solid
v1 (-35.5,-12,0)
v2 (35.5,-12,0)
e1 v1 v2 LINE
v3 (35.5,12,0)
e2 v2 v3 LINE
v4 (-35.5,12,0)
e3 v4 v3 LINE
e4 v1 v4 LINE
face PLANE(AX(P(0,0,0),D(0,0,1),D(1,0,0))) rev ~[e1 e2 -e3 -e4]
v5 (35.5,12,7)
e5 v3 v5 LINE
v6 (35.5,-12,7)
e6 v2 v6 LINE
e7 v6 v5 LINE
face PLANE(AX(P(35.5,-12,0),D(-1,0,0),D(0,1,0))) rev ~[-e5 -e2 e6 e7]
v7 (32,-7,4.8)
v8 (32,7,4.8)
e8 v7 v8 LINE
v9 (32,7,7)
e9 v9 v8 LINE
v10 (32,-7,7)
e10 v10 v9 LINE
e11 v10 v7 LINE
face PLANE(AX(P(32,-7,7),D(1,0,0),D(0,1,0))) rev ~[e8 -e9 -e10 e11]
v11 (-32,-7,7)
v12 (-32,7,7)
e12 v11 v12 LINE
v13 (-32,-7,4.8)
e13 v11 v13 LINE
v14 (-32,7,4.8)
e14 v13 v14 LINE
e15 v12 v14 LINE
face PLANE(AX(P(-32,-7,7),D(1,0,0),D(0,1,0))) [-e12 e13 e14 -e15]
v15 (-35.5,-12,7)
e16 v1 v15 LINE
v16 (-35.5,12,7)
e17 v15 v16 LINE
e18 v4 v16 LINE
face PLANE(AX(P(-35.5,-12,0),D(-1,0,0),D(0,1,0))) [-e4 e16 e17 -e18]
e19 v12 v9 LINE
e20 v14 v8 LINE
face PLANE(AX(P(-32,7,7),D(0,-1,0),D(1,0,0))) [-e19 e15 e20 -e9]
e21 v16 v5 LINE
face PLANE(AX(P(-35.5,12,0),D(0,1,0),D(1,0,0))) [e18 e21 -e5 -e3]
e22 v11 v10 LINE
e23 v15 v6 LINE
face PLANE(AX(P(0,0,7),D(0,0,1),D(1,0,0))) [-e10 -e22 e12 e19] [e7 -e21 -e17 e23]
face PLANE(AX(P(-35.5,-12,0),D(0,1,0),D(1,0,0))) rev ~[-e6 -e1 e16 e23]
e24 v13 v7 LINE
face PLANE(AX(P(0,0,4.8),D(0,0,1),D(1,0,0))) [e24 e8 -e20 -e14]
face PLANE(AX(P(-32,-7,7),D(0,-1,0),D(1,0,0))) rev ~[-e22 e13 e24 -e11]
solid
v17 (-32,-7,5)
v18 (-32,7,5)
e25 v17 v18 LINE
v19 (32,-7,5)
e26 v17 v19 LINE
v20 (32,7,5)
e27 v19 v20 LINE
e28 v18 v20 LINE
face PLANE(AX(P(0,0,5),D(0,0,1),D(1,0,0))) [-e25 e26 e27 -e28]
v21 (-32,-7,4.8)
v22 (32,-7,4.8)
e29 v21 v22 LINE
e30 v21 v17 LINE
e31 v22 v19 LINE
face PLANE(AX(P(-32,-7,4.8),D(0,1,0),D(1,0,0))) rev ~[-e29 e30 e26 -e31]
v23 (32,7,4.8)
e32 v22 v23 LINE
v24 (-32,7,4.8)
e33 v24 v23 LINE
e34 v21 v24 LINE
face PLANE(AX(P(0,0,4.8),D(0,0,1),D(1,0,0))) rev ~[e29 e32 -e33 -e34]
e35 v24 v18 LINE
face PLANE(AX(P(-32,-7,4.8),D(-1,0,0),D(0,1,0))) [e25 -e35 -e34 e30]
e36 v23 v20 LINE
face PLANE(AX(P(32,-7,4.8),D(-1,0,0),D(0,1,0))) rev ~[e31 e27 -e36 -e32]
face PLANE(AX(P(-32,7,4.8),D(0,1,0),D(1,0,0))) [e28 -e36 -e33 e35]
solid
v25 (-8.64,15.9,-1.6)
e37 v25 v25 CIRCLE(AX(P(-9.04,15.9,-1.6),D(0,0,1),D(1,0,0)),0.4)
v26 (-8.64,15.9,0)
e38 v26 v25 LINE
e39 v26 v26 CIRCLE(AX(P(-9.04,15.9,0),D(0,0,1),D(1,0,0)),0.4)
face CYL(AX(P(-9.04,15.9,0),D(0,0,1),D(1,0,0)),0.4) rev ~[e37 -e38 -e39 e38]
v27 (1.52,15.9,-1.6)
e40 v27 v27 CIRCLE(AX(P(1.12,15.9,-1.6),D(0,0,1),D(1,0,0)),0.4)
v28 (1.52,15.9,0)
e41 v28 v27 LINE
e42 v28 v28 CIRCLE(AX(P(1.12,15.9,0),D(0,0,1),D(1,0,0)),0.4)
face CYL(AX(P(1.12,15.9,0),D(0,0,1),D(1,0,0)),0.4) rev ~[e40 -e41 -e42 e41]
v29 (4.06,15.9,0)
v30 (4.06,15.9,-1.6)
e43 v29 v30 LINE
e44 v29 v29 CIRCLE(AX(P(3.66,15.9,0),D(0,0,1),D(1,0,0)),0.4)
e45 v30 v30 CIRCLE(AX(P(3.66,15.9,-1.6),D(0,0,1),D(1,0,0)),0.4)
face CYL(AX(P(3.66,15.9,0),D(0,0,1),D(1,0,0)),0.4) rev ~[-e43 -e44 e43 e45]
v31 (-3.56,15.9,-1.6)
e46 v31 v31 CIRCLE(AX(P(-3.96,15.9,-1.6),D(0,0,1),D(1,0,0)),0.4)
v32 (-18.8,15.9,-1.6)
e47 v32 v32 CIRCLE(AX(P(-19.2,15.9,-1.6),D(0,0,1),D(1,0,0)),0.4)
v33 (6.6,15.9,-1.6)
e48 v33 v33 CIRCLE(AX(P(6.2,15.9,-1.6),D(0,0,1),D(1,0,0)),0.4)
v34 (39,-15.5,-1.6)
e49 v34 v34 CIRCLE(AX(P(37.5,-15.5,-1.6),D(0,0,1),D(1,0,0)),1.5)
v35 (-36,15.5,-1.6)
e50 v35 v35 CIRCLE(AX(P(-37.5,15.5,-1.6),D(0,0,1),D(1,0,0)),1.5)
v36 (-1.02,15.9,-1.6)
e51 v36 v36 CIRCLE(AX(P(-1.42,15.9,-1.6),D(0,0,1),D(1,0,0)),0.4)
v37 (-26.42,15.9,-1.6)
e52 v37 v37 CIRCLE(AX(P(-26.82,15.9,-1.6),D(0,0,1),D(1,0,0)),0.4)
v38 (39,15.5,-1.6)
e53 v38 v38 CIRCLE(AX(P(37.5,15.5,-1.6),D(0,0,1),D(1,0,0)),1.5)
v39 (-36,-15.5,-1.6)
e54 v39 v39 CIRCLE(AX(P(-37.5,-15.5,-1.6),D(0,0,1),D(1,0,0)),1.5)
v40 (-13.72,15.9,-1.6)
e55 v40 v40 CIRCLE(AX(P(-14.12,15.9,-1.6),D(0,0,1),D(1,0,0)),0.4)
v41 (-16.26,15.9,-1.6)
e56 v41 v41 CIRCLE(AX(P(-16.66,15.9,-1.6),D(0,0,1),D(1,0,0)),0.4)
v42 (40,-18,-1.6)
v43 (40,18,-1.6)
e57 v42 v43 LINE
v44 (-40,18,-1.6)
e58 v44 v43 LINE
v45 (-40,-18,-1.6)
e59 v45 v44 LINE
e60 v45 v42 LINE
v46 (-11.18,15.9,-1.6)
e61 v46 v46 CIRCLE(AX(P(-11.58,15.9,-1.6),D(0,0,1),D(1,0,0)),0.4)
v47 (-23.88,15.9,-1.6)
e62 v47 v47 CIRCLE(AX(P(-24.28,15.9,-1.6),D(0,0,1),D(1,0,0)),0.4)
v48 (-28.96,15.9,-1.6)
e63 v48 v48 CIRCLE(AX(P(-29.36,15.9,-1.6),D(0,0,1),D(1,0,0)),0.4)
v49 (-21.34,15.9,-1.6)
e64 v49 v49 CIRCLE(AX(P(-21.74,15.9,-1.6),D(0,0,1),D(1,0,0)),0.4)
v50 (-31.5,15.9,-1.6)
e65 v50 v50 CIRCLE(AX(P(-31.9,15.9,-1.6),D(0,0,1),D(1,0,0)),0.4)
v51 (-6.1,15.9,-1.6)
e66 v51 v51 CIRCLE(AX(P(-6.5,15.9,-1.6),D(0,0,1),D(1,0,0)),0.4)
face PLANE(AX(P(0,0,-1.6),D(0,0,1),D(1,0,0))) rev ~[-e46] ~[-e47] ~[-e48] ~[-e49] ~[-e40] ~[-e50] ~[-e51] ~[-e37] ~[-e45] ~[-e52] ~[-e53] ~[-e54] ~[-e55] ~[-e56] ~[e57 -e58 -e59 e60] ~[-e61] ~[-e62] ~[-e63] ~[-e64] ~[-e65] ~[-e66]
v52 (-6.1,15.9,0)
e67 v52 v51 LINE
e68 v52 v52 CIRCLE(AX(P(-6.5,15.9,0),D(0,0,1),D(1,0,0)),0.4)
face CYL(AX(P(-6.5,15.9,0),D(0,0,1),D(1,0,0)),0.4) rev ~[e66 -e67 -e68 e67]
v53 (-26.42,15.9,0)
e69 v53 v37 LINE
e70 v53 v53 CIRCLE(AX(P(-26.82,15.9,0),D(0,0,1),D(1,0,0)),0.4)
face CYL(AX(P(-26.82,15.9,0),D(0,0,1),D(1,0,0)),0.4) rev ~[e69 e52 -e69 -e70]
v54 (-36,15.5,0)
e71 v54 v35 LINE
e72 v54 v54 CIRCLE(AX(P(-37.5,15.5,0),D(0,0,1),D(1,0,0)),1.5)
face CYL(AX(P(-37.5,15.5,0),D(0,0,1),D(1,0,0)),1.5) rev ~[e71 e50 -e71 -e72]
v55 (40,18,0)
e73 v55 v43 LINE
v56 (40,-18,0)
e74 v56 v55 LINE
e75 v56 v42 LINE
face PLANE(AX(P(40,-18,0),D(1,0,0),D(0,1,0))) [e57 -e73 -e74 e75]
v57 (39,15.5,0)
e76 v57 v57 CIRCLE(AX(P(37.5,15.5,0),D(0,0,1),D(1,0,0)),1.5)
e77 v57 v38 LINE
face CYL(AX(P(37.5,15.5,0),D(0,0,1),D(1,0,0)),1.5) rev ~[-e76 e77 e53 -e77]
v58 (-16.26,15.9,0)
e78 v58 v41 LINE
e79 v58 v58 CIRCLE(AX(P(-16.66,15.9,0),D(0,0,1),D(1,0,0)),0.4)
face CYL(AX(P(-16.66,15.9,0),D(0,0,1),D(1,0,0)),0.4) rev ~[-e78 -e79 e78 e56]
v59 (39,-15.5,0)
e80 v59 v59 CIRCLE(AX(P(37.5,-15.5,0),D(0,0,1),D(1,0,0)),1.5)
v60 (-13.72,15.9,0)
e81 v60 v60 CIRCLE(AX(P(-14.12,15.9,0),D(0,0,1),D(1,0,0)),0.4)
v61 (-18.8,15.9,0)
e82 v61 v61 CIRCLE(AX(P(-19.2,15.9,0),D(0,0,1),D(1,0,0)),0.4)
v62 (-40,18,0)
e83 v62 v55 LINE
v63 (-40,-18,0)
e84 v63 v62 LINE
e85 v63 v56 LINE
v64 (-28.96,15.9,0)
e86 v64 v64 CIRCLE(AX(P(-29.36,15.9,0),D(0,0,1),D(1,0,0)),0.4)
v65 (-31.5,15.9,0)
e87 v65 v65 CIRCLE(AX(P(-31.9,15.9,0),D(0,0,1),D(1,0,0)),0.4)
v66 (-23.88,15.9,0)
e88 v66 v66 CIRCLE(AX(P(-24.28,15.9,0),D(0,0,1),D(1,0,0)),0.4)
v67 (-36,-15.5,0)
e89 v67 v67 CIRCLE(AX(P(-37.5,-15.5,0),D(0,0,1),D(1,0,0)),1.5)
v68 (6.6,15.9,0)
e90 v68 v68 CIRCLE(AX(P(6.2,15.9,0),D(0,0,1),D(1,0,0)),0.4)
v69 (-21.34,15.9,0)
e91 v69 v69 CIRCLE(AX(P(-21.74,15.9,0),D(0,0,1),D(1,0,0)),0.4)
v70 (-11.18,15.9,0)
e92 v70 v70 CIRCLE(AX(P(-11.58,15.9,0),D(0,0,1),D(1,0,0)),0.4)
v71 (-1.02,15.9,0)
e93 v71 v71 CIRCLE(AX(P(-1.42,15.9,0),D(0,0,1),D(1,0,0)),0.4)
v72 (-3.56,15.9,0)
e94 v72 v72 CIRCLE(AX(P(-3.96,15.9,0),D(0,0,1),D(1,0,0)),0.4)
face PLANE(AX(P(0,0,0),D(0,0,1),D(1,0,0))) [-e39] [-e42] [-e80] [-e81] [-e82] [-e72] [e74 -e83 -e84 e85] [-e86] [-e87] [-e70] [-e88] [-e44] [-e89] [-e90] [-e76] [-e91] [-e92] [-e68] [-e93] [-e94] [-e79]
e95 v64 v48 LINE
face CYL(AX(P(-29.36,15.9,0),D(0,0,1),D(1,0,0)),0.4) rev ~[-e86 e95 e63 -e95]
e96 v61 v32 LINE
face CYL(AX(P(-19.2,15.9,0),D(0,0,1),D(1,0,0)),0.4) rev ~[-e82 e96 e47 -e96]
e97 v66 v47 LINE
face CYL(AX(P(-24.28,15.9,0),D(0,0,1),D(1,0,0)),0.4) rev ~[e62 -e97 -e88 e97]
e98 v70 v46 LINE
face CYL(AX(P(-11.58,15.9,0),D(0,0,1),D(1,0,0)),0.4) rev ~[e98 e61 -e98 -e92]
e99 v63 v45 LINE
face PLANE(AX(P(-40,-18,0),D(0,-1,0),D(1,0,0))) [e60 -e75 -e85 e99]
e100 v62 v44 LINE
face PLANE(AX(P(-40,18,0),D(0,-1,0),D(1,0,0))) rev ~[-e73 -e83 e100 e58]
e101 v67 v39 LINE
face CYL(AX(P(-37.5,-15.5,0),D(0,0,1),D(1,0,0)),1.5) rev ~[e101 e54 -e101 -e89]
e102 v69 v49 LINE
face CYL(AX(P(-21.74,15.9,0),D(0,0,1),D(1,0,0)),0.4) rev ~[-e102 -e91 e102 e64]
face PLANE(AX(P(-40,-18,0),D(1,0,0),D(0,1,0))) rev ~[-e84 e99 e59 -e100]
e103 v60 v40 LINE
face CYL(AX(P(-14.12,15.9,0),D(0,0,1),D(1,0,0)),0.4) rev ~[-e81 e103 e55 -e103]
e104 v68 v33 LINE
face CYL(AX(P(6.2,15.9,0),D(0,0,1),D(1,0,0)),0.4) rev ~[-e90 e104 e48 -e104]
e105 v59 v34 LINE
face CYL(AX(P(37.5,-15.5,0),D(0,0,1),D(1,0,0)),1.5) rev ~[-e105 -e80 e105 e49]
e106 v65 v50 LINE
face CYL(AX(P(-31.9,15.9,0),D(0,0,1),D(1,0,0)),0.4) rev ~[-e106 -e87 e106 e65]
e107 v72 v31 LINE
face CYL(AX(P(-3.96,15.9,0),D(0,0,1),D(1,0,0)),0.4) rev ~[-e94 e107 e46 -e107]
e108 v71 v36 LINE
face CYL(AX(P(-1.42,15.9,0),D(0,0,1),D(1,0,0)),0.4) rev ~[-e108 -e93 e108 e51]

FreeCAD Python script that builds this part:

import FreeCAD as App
import Part
import Sketcher

V = App.Vector


def add_polygon(sketch, points):
    """Adds a closed chain of lines whose ends are joined by coincident constraints."""
    first, n = sketch.GeometryCount, len(points)
    for a, b in zip(points, points[1:] + points[:1]):
        sketch.addGeometry(Part.LineSegment(App.Vector(*a, 0), App.Vector(*b, 0)), False)
    for i in range(n):
        sketch.addConstraint(Sketcher.Constraint("Coincident", first + i, 2, first + (i + 1) % n, 1))

doc = App.newDocument("Part")
body = doc.addObject("PartDesign::Body", "Body")

# Sketch on XY plane
sketch1 = body.newObject("Sketcher::SketchObject", "Sketch")
sketch1.AttachmentSupport = (doc.getObject("XY_Plane"), [""])
sketch1.MapMode = "FlatFace"
add_polygon(sketch1, [(-40, 18), (-40, -18), (40, -18), (40, 18)])  # lines 0-3
sketch1.addGeometry(Part.Circle(V(-37.5, -15.5, 0), V(0, 0, 1), 1.5), False)  # 4
sketch1.addGeometry(Part.Circle(V(37.5, -15.5, 0), V(0, 0, 1), 1.5), False)  # 5
sketch1.addGeometry(Part.Circle(V(-37.5, 15.5, 0), V(0, 0, 1), 1.5), False)  # 6
sketch1.addGeometry(Part.Circle(V(37.5, 15.5, 0), V(0, 0, 1), 1.5), False)  # 7
sketch1.addConstraint([
    Sketcher.Constraint("Vertical", 0),
    Sketcher.Constraint("Horizontal", 1),
    Sketcher.Constraint("Vertical", 2),
    Sketcher.Constraint("Horizontal", 3),
    Sketcher.Constraint("Equal", 4, 5),
    Sketcher.Constraint("Equal", 5, 6),
    Sketcher.Constraint("Equal", 6, 7),
    Sketcher.Constraint("Symmetric", 5, 3, 6, 3, -1, 1),
    Sketcher.Constraint("Symmetric", 4, 3, 7, 3, -1, 1),
    Sketcher.Constraint("Symmetric", 0, 2, 2, 2, -1, 1),
    Sketcher.Constraint("Symmetric", 4, 3, 5, 3, -2),
    Sketcher.Constraint("Diameter", 4, 3.0),
    Sketcher.Constraint("DistanceX", 1, 1, 1, 2, 80.0),
    Sketcher.Constraint("DistanceY", 0, 2, 0, 1, 36.0),
    Sketcher.Constraint("DistanceX", 4, 3, 5, 3, 75.0),
    Sketcher.Constraint("DistanceY", 4, 3, 6, 3, 31.0),
])
pad1 = body.newObject("PartDesign::Pad", "Pad")
pad1.Profile = sketch1
pad1.Length = 1.6
pad1.Reversed = True

# Sketch on XY plane
sketch2 = body.newObject("Sketcher::SketchObject", "Sketch001")
sketch2.AttachmentSupport = (doc.getObject("XY_Plane"), [""])
sketch2.MapMode = "FlatFace"
sketch2.addGeometry([
    Part.Circle(V(-31.9, 15.9, 0), V(0, 0, 1), 0.4),  # 0
    Part.Circle(V(-29.36, 15.9, 0), V(0, 0, 1), 0.4),  # 1
    Part.Circle(V(-26.82, 15.9, 0), V(0, 0, 1), 0.4),  # 2
    Part.Circle(V(-24.28, 15.9, 0), V(0, 0, 1), 0.4),  # 3
    Part.Circle(V(-21.74, 15.9, 0), V(0, 0, 1), 0.4),  # 4
    Part.Circle(V(-19.2, 15.9, 0), V(0, 0, 1), 0.4),  # 5
    Part.Circle(V(-16.66, 15.9, 0), V(0, 0, 1), 0.4),  # 6
    Part.Circle(V(-14.12, 15.9, 0), V(0, 0, 1), 0.4),  # 7
    Part.Circle(V(-11.58, 15.9, 0), V(0, 0, 1), 0.4),  # 8
    Part.Circle(V(-9.04, 15.9, 0), V(0, 0, 1), 0.4),  # 9
    Part.Circle(V(-6.5, 15.9, 0), V(0, 0, 1), 0.4),  # 10
    Part.Circle(V(-3.96, 15.9, 0), V(0, 0, 1), 0.4),  # 11
    Part.Circle(V(-1.42, 15.9, 0), V(0, 0, 1), 0.4),  # 12
    Part.Circle(V(1.12, 15.9, 0), V(0, 0, 1), 0.4),  # 13
    Part.Circle(V(3.66, 15.9, 0), V(0, 0, 1), 0.4),  # 14
    Part.Circle(V(6.2, 15.9, 0), V(0, 0, 1), 0.4),  # 15
], False)
sketch2.addConstraint([
    Sketcher.Constraint("Equal", 0, 1),
    Sketcher.Constraint("Equal", 1, 2),
    Sketcher.Constraint("Equal", 2, 3),
    Sketcher.Constraint("Equal", 3, 4),
    Sketcher.Constraint("Equal", 4, 5),
    Sketcher.Constraint("Equal", 5, 6),
    Sketcher.Constraint("Equal", 6, 7),
    Sketcher.Constraint("Equal", 7, 8),
    Sketcher.Constraint("Equal", 8, 9),
    Sketcher.Constraint("Equal", 9, 10),
    Sketcher.Constraint("Equal", 10, 11),
    Sketcher.Constraint("Equal", 11, 12),
    Sketcher.Constraint("Equal", 12, 13),
    Sketcher.Constraint("Equal", 13, 14),
    Sketcher.Constraint("Equal", 14, 15),
    Sketcher.Constraint("Horizontal", 0, 3, 1, 3),
    Sketcher.Constraint("Horizontal", 1, 3, 2, 3),
    Sketcher.Constraint("Horizontal", 2, 3, 3, 3),
    Sketcher.Constraint("Horizontal", 3, 3, 4, 3),
    Sketcher.Constraint("Horizontal", 4, 3, 5, 3),
    Sketcher.Constraint("Horizontal", 5, 3, 6, 3),
    Sketcher.Constraint("Horizontal", 6, 3, 7, 3),
    Sketcher.Constraint("Horizontal", 7, 3, 8, 3),
    Sketcher.Constraint("Horizontal", 8, 3, 9, 3),
    Sketcher.Constraint("Horizontal", 9, 3, 10, 3),
    Sketcher.Constraint("Horizontal", 10, 3, 11, 3),
    Sketcher.Constraint("Horizontal", 11, 3, 12, 3),
    Sketcher.Constraint("Horizontal", 12, 3, 13, 3),
    Sketcher.Constraint("Horizontal", 13, 3, 14, 3),
    Sketcher.Constraint("Horizontal", 14, 3, 15, 3),
    Sketcher.Constraint("Diameter", 0, 0.8),
    Sketcher.Constraint("DistanceX", 0, 3, -1, 1, 31.9),
    Sketcher.Constraint("DistanceY", -1, 1, 0, 3, 15.9),
    Sketcher.Constraint("DistanceX", 5, 3, -1, 1, 19.2),
    Sketcher.Constraint("DistanceX", 10, 3, -1, 1, 6.5),
    Sketcher.Constraint("DistanceX", -1, 1, 15, 3, 6.2),
    Sketcher.Constraint("DistanceX", 1, 3, 6, 3, 12.7),
    Sketcher.Constraint("DistanceX", 2, 3, 7, 3, 12.7),
    Sketcher.Constraint("DistanceX", 3, 3, 8, 3, 12.7),
    Sketcher.Constraint("DistanceX", 4, 3, 9, 3, 12.7),
    Sketcher.Constraint("DistanceX", 6, 3, 11, 3, 12.7),
    Sketcher.Constraint("DistanceX", 7, 3, 12, 3, 12.7),
    Sketcher.Constraint("DistanceX", 8, 3, 13, 3, 12.7),
    Sketcher.Constraint("DistanceX", 9, 3, 14, 3, 12.7),
    Sketcher.Constraint("DistanceX", 1, 3, -1, 1, 29.36),
    Sketcher.Constraint("DistanceX", 2, 3, -1, 1, 26.82),
    Sketcher.Constraint("DistanceX", 3, 3, -1, 1, 24.28),
    Sketcher.Constraint("DistanceX", 4, 3, -1, 1, 21.74),
])
pocket1 = body.newObject("PartDesign::Pocket", "Pocket")
pocket1.Profile = sketch2
pocket1.Length = 25
body2 = doc.addObject("PartDesign::Body", "Body001")

# Sketch on XY plane
sketch3 = body2.newObject("Sketcher::SketchObject", "Sketch002")
sketch3.AttachmentSupport = (doc.getObject("XY_Plane001"), [""])
sketch3.MapMode = "FlatFace"
add_polygon(sketch3, [(-36, 12), (-36, -12), (36, -12), (36, 12)])  # lines 0-3
sketch3.addConstraint([
    Sketcher.Constraint("Vertical", 0),
    Sketcher.Constraint("Horizontal", 1),
    Sketcher.Constraint("Vertical", 2),
    Sketcher.Constraint("Horizontal", 3),
    Sketcher.Constraint("Symmetric", 0, 2, 2, 2, -1, 1),
    Sketcher.Constraint("DistanceX", 1, 1, 1, 2, 71.0),
    Sketcher.Constraint("DistanceY", 0, 2, 0, 1, 24.0),
])
pad2 = body2.newObject("PartDesign::Pad", "Pad001")
pad2.Profile = sketch3
pad2.Length = 7

# Sketch on XY plane
sketch4 = body2.newObject("Sketcher::SketchObject", "Sketch003")
sketch4.AttachmentSupport = (doc.getObject("XY_Plane001"), [""])
sketch4.MapMode = "FlatFace"
sketch4.AttachmentOffset = App.Placement(V(0, 0, 7), App.Rotation())
add_polygon(sketch4, [(-32, 7), (-32, -7), (32, -7), (32, 7)])  # lines 0-3
sketch4.addConstraint([
    Sketcher.Constraint("Vertical", 0),
    Sketcher.Constraint("Horizontal", 1),
    Sketcher.Constraint("Vertical", 2),
    Sketcher.Constraint("Horizontal", 3),
    Sketcher.Constraint("Symmetric", 0, 2, 2, 2, -1, 1),
    Sketcher.Constraint("DistanceX", 1, 1, 1, 2, 64.0),
    Sketcher.Constraint("DistanceY", 0, 2, 0, 1, 14.0),
])
pocket2 = body2.newObject("PartDesign::Pocket", "Pocket001")
pocket2.Profile = sketch4
pocket2.Length = 2.2
body3 = doc.addObject("PartDesign::Body", "Body002")

# Sketch on XY plane
sketch5 = body3.newObject("Sketcher::SketchObject", "Sketch004")
sketch5.AttachmentSupport = (doc.getObject("XY_Plane002"), [""])
sketch5.MapMode = "FlatFace"
sketch5.AttachmentOffset = App.Placement(V(0, 0, 4.8), App.Rotation())
add_polygon(sketch5, [(-32, 7), (-32, -7), (32, -7), (32, 7)])  # lines 0-3
sketch5.addConstraint([
    Sketcher.Constraint("Vertical", 0),
    Sketcher.Constraint("Horizontal", 1),
    Sketcher.Constraint("Vertical", 2),
    Sketcher.Constraint("Horizontal", 3),
    Sketcher.Constraint("Symmetric", 0, 2, 2, 2, -1, 1),
    Sketcher.Constraint("DistanceX", 1, 1, 1, 2, 64.0),
    Sketcher.Constraint("DistanceY", 0, 2, 0, 1, 14.0),
])
pad3 = body3.newObject("PartDesign::Pad", "Pad002")
pad3.Profile = sketch5
pad3.Length = 0.2

doc.recompute()
